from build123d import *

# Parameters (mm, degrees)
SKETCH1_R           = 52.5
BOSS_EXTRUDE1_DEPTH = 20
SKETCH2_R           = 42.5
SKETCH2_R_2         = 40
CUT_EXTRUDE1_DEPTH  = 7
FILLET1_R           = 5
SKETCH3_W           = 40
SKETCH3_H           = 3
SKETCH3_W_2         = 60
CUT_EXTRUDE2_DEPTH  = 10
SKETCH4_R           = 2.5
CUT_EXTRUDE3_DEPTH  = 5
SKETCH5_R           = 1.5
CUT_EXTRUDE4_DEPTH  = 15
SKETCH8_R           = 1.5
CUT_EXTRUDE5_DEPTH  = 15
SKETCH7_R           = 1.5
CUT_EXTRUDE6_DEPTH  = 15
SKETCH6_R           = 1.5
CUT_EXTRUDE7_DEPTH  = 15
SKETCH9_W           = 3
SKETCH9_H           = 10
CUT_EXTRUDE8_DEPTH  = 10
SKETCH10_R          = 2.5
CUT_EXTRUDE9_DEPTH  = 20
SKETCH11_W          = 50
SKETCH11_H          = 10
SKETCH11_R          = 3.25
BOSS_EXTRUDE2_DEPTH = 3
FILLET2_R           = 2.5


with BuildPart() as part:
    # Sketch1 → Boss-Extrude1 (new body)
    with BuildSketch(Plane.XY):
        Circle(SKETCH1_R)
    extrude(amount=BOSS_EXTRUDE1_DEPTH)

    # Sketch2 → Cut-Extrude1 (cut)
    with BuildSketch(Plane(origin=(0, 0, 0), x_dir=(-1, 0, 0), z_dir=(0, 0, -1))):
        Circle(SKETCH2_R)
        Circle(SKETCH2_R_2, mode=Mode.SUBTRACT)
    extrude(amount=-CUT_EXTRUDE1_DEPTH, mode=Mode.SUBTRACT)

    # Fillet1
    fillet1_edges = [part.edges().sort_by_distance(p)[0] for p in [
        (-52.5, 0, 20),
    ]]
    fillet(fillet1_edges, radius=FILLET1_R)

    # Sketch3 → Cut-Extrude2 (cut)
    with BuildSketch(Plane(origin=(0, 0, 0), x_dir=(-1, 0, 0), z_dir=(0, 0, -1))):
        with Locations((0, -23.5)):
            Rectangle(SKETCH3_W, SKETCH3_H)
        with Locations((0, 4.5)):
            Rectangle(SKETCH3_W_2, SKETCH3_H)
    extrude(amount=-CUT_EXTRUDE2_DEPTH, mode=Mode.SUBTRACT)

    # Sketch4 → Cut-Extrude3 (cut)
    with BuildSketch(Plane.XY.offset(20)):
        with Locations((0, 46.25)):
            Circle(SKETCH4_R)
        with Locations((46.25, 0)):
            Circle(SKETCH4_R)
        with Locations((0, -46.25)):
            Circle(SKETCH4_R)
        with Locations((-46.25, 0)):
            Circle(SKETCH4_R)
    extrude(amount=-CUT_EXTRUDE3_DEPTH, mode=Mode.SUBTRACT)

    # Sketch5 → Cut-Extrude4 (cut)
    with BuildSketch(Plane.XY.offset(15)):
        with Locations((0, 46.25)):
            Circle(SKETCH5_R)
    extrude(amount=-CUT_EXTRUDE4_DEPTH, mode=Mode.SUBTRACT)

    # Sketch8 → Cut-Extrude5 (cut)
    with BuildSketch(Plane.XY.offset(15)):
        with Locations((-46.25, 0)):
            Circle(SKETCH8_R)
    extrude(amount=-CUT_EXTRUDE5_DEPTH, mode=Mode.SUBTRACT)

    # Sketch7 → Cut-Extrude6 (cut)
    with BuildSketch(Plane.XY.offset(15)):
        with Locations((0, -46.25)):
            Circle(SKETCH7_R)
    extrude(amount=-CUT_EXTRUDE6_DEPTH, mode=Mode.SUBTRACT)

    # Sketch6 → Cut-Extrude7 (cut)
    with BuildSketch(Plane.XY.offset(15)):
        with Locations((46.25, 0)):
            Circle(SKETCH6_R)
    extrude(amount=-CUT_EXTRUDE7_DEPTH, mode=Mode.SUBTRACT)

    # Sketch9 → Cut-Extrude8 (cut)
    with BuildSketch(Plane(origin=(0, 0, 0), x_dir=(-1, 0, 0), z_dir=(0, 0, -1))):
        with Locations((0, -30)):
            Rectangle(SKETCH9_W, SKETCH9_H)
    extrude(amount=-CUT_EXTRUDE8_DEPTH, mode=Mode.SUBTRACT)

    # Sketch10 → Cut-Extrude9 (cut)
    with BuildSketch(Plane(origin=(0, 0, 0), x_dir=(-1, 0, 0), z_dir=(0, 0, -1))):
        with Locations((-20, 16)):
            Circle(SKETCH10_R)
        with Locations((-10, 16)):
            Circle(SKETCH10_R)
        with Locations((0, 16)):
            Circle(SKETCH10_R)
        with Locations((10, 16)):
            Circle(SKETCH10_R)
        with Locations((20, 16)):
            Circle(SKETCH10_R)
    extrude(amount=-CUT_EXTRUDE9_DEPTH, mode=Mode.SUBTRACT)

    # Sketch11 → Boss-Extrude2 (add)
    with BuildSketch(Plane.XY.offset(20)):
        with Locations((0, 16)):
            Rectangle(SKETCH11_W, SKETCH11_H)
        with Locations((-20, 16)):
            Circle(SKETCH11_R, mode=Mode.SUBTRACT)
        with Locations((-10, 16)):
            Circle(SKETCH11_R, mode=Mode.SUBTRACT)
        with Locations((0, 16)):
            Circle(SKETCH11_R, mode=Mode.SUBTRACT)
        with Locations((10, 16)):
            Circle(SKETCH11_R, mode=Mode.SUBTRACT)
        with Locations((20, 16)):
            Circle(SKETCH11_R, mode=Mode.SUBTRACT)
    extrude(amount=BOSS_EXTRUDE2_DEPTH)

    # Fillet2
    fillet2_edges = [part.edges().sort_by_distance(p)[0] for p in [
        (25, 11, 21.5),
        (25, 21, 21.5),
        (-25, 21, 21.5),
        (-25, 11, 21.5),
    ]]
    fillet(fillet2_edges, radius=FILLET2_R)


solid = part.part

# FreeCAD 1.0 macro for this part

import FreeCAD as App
import Part
import Sketcher
from FreeCAD import Vector


def edges_at(feature, points):
    """Names of the edges that pass closest to the given points."""
    edges = feature.Shape.Edges
    near = lambda p: min(range(len(edges)), key=lambda i: edges[i].distToShape(Part.Vertex(*p))[0])
    return sorted({f"Edge{near(p) + 1}" for p in points})


def add_polygon(sketch, points):
    """Adds a closed chain of lines whose ends are joined by coincident constraints."""
    first, n = sketch.GeometryCount, len(points)
    for a, b in zip(points, points[1:] + points[:1]):
        sketch.addGeometry(Part.LineSegment(App.Vector(*a, 0), App.Vector(*b, 0)), False)
    for i in range(n):
        sketch.addConstraint(Sketcher.Constraint("Coincident", first + i, 2, first + (i + 1) % n, 1))

doc = App.newDocument("Part")
params = doc.addObject("Spreadsheet::Sheet", "Params")
for row, (alias, value) in enumerate([
    ("sketch1_diameter", "105 mm"),
    ("pad1_length", "20 mm"),
    ("sketch2_diameter", "85 mm"),
    ("sketch2_diameter2", "80 mm"),
    ("pocket1_length", "7 mm"),
    ("fillet_radius", "5 mm"),
    ("sketch3_width", "40 mm"),
    ("sketch3_width2", "60 mm"),
    ("sketch3_height", "3 mm"),
    ("pocket2_length", "10 mm"),
    ("sketch4_diameter", "5 mm"),
    ("pocket3_length", "5 mm"),
    ("sketch5_diameter", "3 mm"),
    ("pocket4_length", "15 mm"),
    ("sketch6_diameter", "3 mm"),
    ("pocket5_length", "15 mm"),
    ("sketch7_diameter", "3 mm"),
    ("pocket6_length", "15 mm"),
    ("sketch8_diameter", "3 mm"),
    ("pocket7_length", "15 mm"),
    ("sketch9_width", "3 mm"),
    ("sketch9_height", "10 mm"),
    ("pocket8_length", "10 mm"),
    ("sketch10_diameter", "5 mm"),
    ("pocket9_length", "20 mm"),
    ("sketch11_diameter", "6.5 mm"),
    ("sketch11_width", "50 mm"),
    ("sketch11_height", "10 mm"),
    ("pad2_length", "3 mm"),
    ("fillet2_radius", "2.5 mm"),
], start=1):
    params.set(f"A{row}", alias)
    params.set(f"B{row}", "=" + value)
    params.setAlias(f"B{row}", alias)

body = doc.addObject("PartDesign::Body", "Body")

# Sketch on XY plane
sketch1 = body.newObject("Sketcher::SketchObject", "Sketch")
sketch1.AttachmentSupport = (doc.getObject("XY_Plane"), [""])
sketch1.MapMode = "FlatFace"
sketch1.addGeometry(Part.Circle(Vector(0, 0, 0), Vector(0, 0, 1), 52), False)
sketch1.addConstraint([
    Sketcher.Constraint("Coincident", 0, 3, -1, 1),
    Sketcher.Constraint("Diameter", 0, 105.0),
])
sketch1.setExpression("Constraints[1]", "Params.sketch1_diameter")
pad1 = body.newObject("PartDesign::Pad", "Pad")
pad1.Profile = sketch1
pad1.setExpression("Length", "Params.pad1_length")

# Sketch on XY plane
sketch2 = body.newObject("Sketcher::SketchObject", "Sketch001")
sketch2.AttachmentSupport = (doc.getObject("XY_Plane"), [""])
sketch2.MapMode = "FlatFace"
sketch2.addGeometry([
    Part.Circle(Vector(0, 0, 0), Vector(0, 0, 1), 42),
    Part.Circle(Vector(0, 0, 0), Vector(0, 0, 1), 40),
], False)
sketch2.addConstraint([
    Sketcher.Constraint("Coincident", 0, 3, -1, 1),
    Sketcher.Constraint("Coincident", 1, 3, -1, 1),
    Sketcher.Constraint("Diameter", 0, 85.0),
    Sketcher.Constraint("Diameter", 1, 80.0),
])
sketch2.setExpression("Constraints[2]", "Params.sketch2_diameter")
sketch2.setExpression("Constraints[3]", "Params.sketch2_diameter2")
pocket1 = body.newObject("PartDesign::Pocket", "Pocket")
pocket1.Profile = sketch2
pocket1.setExpression("Length", "Params.pocket1_length")
pocket1.Reversed = True
doc.recompute()

fillet = body.newObject("PartDesign::Fillet", "Fillet")
fillet.Base = (pocket1, edges_at(pocket1, [(-52.5, 0, 20)]))
fillet.setExpression("Radius", "Params.fillet_radius")

# Sketch on XY plane
sketch3 = body.newObject("Sketcher::SketchObject", "Sketch002")
sketch3.AttachmentSupport = (doc.getObject("XY_Plane"), [""])
sketch3.MapMode = "FlatFace"
add_polygon(sketch3, [(20, -22), (20, -25), (-20, -25), (-20, -22)])  # lines 0-3
add_polygon(sketch3, [(30, 6), (30, 3), (-30, 3), (-30, 6)])  # lines 4-7
sketch3.addConstraint([
    Sketcher.Constraint("Vertical", 0),
    Sketcher.Constraint("Horizontal", 1),
    Sketcher.Constraint("Vertical", 2),
    Sketcher.Constraint("Horizontal", 3),
    Sketcher.Constraint("Vertical", 4),
    Sketcher.Constraint("Horizontal", 5),
    Sketcher.Constraint("Vertical", 6),
    Sketcher.Constraint("Horizontal", 7),
    Sketcher.Constraint("Equal", 2, 4),
    Sketcher.Constraint("DistanceX", 1, 2, 1, 1, 40.0),
    Sketcher.Constraint("DistanceX", 5, 2, 5, 1, 60.0),
    Sketcher.Constraint("DistanceY", 0, 2, 0, 1, 3.0),
    Sketcher.Constraint("DistanceX", -1, 1, 0, 2, 20.0),
    Sketcher.Constraint("DistanceY", 0, 2, -1, 1, 25.0),
    Sketcher.Constraint("DistanceX", -1, 1, 4, 2, 30.0),
    Sketcher.Constraint("DistanceY", -1, 1, 4, 2, 3.0),
])
sketch3.setExpression("Constraints[17]", "Params.sketch3_width")
sketch3.setExpression("Constraints[18]", "Params.sketch3_width2")
sketch3.setExpression("Constraints[19]", "Params.sketch3_height")
pocket2 = body.newObject("PartDesign::Pocket", "Pocket001")
pocket2.Profile = sketch3
pocket2.setExpression("Length", "Params.pocket2_length")
pocket2.Reversed = True

# Sketch on XY plane
sketch4 = body.newObject("Sketcher::SketchObject", "Sketch003")
sketch4.AttachmentSupport = (doc.getObject("XY_Plane"), [""])
sketch4.MapMode = "FlatFace"
sketch4.AttachmentOffset = App.Placement(Vector(0, 0, 20), App.Rotation())
sketch4.addGeometry([
    Part.Circle(Vector(0, 46.2, 0), Vector(0, 0, 1), 2.5),
    Part.Circle(Vector(46.2, 0, 0), Vector(0, 0, 1), 2.5),
    Part.Circle(Vector(0, -46.2, 0), Vector(0, 0, 1), 2.5),
    Part.Circle(Vector(-46.2, 0, 0), Vector(0, 0, 1), 2.5),
], False)
sketch4.addConstraint([
    Sketcher.Constraint("Equal", 0, 1),
    Sketcher.Constraint("Equal", 1, 2),
    Sketcher.Constraint("Equal", 2, 3),
    Sketcher.Constraint("Symmetric", 0, 3, 2, 3, -1, 1),
    Sketcher.Constraint("Symmetric", 1, 3, 3, 3, -1, 1),
    Sketcher.Constraint("PointOnObject", 0, 3, -2),
    Sketcher.Constraint("PointOnObject", 1, 3, -1),
    Sketcher.Constraint("Diameter", 0, 5.0),
    Sketcher.Constraint("DistanceY", 2, 3, 0, 3, 92.5),
    Sketcher.Constraint("DistanceX", 3, 3, 1, 3, 92.5),
])
sketch4.setExpression("Constraints[7]", "Params.sketch4_diameter")
pocket3 = body.newObject("PartDesign::Pocket", "Pocket002")
pocket3.Profile = sketch4
pocket3.setExpression("Length", "Params.pocket3_length")

# Sketch on XY plane
sketch5 = body.newObject("Sketcher::SketchObject", "Sketch004")
sketch5.AttachmentSupport = (doc.getObject("XY_Plane"), [""])
sketch5.MapMode = "FlatFace"
sketch5.AttachmentOffset = App.Placement(Vector(0, 0, 15), App.Rotation())
sketch5.addGeometry(Part.Circle(Vector(0, 46.2, 0), Vector(0, 0, 1), 1.5), False)
sketch5.addConstraint([
    Sketcher.Constraint("PointOnObject", 0, 3, -2),
    Sketcher.Constraint("Diameter", 0, 3.0),
    Sketcher.Constraint("DistanceY", -1, 1, 0, 3, 46.25),
])
sketch5.setExpression("Constraints[1]", "Params.sketch5_diameter")
pocket4 = body.newObject("PartDesign::Pocket", "Pocket003")
pocket4.Profile = sketch5
pocket4.setExpression("Length", "Params.pocket4_length")

# Sketch on XY plane
sketch6 = body.newObject("Sketcher::SketchObject", "Sketch005")
sketch6.AttachmentSupport = (doc.getObject("XY_Plane"), [""])
sketch6.MapMode = "FlatFace"
sketch6.AttachmentOffset = App.Placement(Vector(0, 0, 15), App.Rotation())
sketch6.addGeometry(Part.Circle(Vector(-46.2, 0, 0), Vector(0, 0, 1), 1.5), False)
sketch6.addConstraint([
    Sketcher.Constraint("PointOnObject", 0, 3, -1),
    Sketcher.Constraint("Diameter", 0, 3.0),
    Sketcher.Constraint("DistanceX", 0, 3, -1, 1, 46.25),
])
sketch6.setExpression("Constraints[1]", "Params.sketch6_diameter")
pocket5 = body.newObject("PartDesign::Pocket", "Pocket004")
pocket5.Profile = sketch6
pocket5.setExpression("Length", "Params.pocket5_length")

# Sketch on XY plane
sketch7 = body.newObject("Sketcher::SketchObject", "Sketch006")
sketch7.AttachmentSupport = (doc.getObject("XY_Plane"), [""])
sketch7.MapMode = "FlatFace"
sketch7.AttachmentOffset = App.Placement(Vector(0, 0, 15), App.Rotation())
sketch7.addGeometry(Part.Circle(Vector(0, -46.2, 0), Vector(0, 0, 1), 1.5), False)
sketch7.addConstraint([
    Sketcher.Constraint("PointOnObject", 0, 3, -2),
    Sketcher.Constraint("Diameter", 0, 3.0),
    Sketcher.Constraint("DistanceY", 0, 3, -1, 1, 46.25),
])
sketch7.setExpression("Constraints[1]", "Params.sketch7_diameter")
pocket6 = body.newObject("PartDesign::Pocket", "Pocket005")
pocket6.Profile = sketch7
pocket6.setExpression("Length", "Params.pocket6_length")

# Sketch on XY plane
sketch8 = body.newObject("Sketcher::SketchObject", "Sketch007")
sketch8.AttachmentSupport = (doc.getObject("XY_Plane"), [""])
sketch8.MapMode = "FlatFace"
sketch8.AttachmentOffset = App.Placement(Vector(0, 0, 15), App.Rotation())
sketch8.addGeometry(Part.Circle(Vector(46.2, 0, 0), Vector(0, 0, 1), 1.5), False)
sketch8.addConstraint([
    Sketcher.Constraint("PointOnObject", 0, 3, -1),
    Sketcher.Constraint("Diameter", 0, 3.0),
    Sketcher.Constraint("DistanceX", -1, 1, 0, 3, 46.25),
])
sketch8.setExpression("Constraints[1]", "Params.sketch8_diameter")
pocket7 = body.newObject("PartDesign::Pocket", "Pocket006")
pocket7.Profile = sketch8
pocket7.setExpression("Length", "Params.pocket7_length")

# Sketch on XY plane
sketch9 = body.newObject("Sketcher::SketchObject", "Sketch008")
sketch9.AttachmentSupport = (doc.getObject("XY_Plane"), [""])
sketch9.MapMode = "FlatFace"
add_polygon(sketch9, [(1.5, -25), (1.5, -35), (-1.5, -35), (-1.5, -25)])  # lines 0-3
sketch9.addConstraint([
    Sketcher.Constraint("Vertical", 0),
    Sketcher.Constraint("Horizontal", 1),
    Sketcher.Constraint("Vertical", 2),
    Sketcher.Constraint("Horizontal", 3),
    Sketcher.Constraint("DistanceX", 1, 2, 1, 1, 3.0),
    Sketcher.Constraint("DistanceY", 0, 2, 0, 1, 10.0),
    Sketcher.Constraint("DistanceY", 0, 2, -1, 1, 35.0),
    Sketcher.Constraint("DistanceX", -1, 1, 0, 2, 1.5),
])
sketch9.setExpression("Constraints[8]", "Params.sketch9_width")
sketch9.setExpression("Constraints[9]", "Params.sketch9_height")
pocket8 = body.newObject("PartDesign::Pocket", "Pocket007")
pocket8.Profile = sketch9
pocket8.setExpression("Length", "Params.pocket8_length")
pocket8.Reversed = True

# Sketch on XY plane
sketch10 = body.newObject("Sketcher::SketchObject", "Sketch009")
sketch10.AttachmentSupport = (doc.getObject("XY_Plane"), [""])
sketch10.MapMode = "FlatFace"
sketch10.addGeometry([
    Part.Circle(Vector(20, 16, 0), Vector(0, 0, 1), 2.5),  # 0
    Part.Circle(Vector(10, 16, 0), Vector(0, 0, 1), 2.5),  # 1
    Part.Circle(Vector(0, 16, 0), Vector(0, 0, 1), 2.5),  # 2
    Part.Circle(Vector(-10, 16, 0), Vector(0, 0, 1), 2.5),  # 3
    Part.Circle(Vector(-20, 16, 0), Vector(0, 0, 1), 2.5),  # 4
], False)
sketch10.addConstraint([
    Sketcher.Constraint("Equal", 0, 1),
    Sketcher.Constraint("Equal", 1, 2),
    Sketcher.Constraint("Equal", 2, 3),
    Sketcher.Constraint("Equal", 3, 4),
    Sketcher.Constraint("Symmetric", 1, 3, 3, 3, -2),
    Sketcher.Constraint("Symmetric", 0, 3, 4, 3, -2),
    Sketcher.Constraint("PointOnObject", 2, 3, -2),
    Sketcher.Constraint("Horizontal", 0, 3, 1, 3),
    Sketcher.Constraint("Horizontal", 1, 3, 2, 3),
    Sketcher.Constraint("Diameter", 0, 5.0),
    Sketcher.Constraint("DistanceX", -1, 1, 0, 3, 20.0),
    Sketcher.Constraint("DistanceY", -1, 1, 0, 3, 16.0),
    Sketcher.Constraint("DistanceX", -1, 1, 1, 3, 10.0),
])
sketch10.setExpression("Constraints[9]", "Params.sketch10_diameter")
pocket9 = body.newObject("PartDesign::Pocket", "Pocket008")
pocket9.Profile = sketch10
pocket9.setExpression("Length", "Params.pocket9_length")
pocket9.Reversed = True

# Sketch on XY plane
sketch11 = body.newObject("Sketcher::SketchObject", "Sketch010")
sketch11.AttachmentSupport = (doc.getObject("XY_Plane"), [""])
sketch11.MapMode = "FlatFace"
sketch11.AttachmentOffset = App.Placement(Vector(0, 0, 20), App.Rotation())
add_polygon(sketch11, [(-25, 21), (-25, 11), (25, 11), (25, 21)])  # lines 0-3
sketch11.addGeometry(Part.Circle(Vector(-20, 16, 0), Vector(0, 0, 1), 3.2), False)  # 4
sketch11.addGeometry(Part.Circle(Vector(-10, 16, 0), Vector(0, 0, 1), 3.2), False)  # 5
sketch11.addGeometry(Part.Circle(Vector(0, 16, 0), Vector(0, 0, 1), 3.2), False)  # 6
sketch11.addGeometry(Part.Circle(Vector(10, 16, 0), Vector(0, 0, 1), 3.2), False)  # 7
sketch11.addGeometry(Part.Circle(Vector(20, 16, 0), Vector(0, 0, 1), 3.2), False)  # 8
sketch11.addConstraint([
    Sketcher.Constraint("Vertical", 0),
    Sketcher.Constraint("Horizontal", 1),
    Sketcher.Constraint("Vertical", 2),
    Sketcher.Constraint("Horizontal", 3),
    Sketcher.Constraint("Equal", 4, 5),
    Sketcher.Constraint("Equal", 5, 6),
    Sketcher.Constraint("Equal", 6, 7),
    Sketcher.Constraint("Equal", 7, 8),
    Sketcher.Constraint("Symmetric", 5, 3, 7, 3, -2),
    Sketcher.Constraint("Symmetric", 4, 3, 8, 3, -2),
    Sketcher.Constraint("PointOnObject", 6, 3, -2),
    Sketcher.Constraint("Horizontal", 4, 3, 5, 3),
    Sketcher.Constraint("Horizontal", 5, 3, 6, 3),
    Sketcher.Constraint("Diameter", 4, 6.5),
    Sketcher.Constraint("DistanceX", 1, 1, 1, 2, 50.0),
    Sketcher.Constraint("DistanceY", 0, 2, 0, 1, 10.0),
    Sketcher.Constraint("DistanceX", 4, 3, -1, 1, 20.0),
    Sketcher.Constraint("DistanceY", -1, 1, 4, 3, 16.0),
    Sketcher.Constraint("DistanceX", 5, 3, -1, 1, 10.0),
    Sketcher.Constraint("DistanceX", 0, 2, -1, 1, 25.0),
    Sketcher.Constraint("DistanceY", -1, 1, 0, 2, 11.0),
])
sketch11.setExpression("Constraints[17]", "Params.sketch11_diameter")
sketch11.setExpression("Constraints[18]", "Params.sketch11_width")
sketch11.setExpression("Constraints[19]", "Params.sketch11_height")
pad2 = body.newObject("PartDesign::Pad", "Pad001")
pad2.Profile = sketch11
pad2.setExpression("Length", "Params.pad2_length")
doc.recompute()

fillet2 = body.newObject("PartDesign::Fillet", "Fillet001")
fillet2.Base = (pad2, edges_at(pad2, [
    (25, 11, 21.5),
    (25, 21, 21.5),
    (-25, 21, 21.5),
    (-25, 11, 21.5),
]))
fillet2.setExpression("Radius", "Params.fillet2_radius")

doc.recompute()
